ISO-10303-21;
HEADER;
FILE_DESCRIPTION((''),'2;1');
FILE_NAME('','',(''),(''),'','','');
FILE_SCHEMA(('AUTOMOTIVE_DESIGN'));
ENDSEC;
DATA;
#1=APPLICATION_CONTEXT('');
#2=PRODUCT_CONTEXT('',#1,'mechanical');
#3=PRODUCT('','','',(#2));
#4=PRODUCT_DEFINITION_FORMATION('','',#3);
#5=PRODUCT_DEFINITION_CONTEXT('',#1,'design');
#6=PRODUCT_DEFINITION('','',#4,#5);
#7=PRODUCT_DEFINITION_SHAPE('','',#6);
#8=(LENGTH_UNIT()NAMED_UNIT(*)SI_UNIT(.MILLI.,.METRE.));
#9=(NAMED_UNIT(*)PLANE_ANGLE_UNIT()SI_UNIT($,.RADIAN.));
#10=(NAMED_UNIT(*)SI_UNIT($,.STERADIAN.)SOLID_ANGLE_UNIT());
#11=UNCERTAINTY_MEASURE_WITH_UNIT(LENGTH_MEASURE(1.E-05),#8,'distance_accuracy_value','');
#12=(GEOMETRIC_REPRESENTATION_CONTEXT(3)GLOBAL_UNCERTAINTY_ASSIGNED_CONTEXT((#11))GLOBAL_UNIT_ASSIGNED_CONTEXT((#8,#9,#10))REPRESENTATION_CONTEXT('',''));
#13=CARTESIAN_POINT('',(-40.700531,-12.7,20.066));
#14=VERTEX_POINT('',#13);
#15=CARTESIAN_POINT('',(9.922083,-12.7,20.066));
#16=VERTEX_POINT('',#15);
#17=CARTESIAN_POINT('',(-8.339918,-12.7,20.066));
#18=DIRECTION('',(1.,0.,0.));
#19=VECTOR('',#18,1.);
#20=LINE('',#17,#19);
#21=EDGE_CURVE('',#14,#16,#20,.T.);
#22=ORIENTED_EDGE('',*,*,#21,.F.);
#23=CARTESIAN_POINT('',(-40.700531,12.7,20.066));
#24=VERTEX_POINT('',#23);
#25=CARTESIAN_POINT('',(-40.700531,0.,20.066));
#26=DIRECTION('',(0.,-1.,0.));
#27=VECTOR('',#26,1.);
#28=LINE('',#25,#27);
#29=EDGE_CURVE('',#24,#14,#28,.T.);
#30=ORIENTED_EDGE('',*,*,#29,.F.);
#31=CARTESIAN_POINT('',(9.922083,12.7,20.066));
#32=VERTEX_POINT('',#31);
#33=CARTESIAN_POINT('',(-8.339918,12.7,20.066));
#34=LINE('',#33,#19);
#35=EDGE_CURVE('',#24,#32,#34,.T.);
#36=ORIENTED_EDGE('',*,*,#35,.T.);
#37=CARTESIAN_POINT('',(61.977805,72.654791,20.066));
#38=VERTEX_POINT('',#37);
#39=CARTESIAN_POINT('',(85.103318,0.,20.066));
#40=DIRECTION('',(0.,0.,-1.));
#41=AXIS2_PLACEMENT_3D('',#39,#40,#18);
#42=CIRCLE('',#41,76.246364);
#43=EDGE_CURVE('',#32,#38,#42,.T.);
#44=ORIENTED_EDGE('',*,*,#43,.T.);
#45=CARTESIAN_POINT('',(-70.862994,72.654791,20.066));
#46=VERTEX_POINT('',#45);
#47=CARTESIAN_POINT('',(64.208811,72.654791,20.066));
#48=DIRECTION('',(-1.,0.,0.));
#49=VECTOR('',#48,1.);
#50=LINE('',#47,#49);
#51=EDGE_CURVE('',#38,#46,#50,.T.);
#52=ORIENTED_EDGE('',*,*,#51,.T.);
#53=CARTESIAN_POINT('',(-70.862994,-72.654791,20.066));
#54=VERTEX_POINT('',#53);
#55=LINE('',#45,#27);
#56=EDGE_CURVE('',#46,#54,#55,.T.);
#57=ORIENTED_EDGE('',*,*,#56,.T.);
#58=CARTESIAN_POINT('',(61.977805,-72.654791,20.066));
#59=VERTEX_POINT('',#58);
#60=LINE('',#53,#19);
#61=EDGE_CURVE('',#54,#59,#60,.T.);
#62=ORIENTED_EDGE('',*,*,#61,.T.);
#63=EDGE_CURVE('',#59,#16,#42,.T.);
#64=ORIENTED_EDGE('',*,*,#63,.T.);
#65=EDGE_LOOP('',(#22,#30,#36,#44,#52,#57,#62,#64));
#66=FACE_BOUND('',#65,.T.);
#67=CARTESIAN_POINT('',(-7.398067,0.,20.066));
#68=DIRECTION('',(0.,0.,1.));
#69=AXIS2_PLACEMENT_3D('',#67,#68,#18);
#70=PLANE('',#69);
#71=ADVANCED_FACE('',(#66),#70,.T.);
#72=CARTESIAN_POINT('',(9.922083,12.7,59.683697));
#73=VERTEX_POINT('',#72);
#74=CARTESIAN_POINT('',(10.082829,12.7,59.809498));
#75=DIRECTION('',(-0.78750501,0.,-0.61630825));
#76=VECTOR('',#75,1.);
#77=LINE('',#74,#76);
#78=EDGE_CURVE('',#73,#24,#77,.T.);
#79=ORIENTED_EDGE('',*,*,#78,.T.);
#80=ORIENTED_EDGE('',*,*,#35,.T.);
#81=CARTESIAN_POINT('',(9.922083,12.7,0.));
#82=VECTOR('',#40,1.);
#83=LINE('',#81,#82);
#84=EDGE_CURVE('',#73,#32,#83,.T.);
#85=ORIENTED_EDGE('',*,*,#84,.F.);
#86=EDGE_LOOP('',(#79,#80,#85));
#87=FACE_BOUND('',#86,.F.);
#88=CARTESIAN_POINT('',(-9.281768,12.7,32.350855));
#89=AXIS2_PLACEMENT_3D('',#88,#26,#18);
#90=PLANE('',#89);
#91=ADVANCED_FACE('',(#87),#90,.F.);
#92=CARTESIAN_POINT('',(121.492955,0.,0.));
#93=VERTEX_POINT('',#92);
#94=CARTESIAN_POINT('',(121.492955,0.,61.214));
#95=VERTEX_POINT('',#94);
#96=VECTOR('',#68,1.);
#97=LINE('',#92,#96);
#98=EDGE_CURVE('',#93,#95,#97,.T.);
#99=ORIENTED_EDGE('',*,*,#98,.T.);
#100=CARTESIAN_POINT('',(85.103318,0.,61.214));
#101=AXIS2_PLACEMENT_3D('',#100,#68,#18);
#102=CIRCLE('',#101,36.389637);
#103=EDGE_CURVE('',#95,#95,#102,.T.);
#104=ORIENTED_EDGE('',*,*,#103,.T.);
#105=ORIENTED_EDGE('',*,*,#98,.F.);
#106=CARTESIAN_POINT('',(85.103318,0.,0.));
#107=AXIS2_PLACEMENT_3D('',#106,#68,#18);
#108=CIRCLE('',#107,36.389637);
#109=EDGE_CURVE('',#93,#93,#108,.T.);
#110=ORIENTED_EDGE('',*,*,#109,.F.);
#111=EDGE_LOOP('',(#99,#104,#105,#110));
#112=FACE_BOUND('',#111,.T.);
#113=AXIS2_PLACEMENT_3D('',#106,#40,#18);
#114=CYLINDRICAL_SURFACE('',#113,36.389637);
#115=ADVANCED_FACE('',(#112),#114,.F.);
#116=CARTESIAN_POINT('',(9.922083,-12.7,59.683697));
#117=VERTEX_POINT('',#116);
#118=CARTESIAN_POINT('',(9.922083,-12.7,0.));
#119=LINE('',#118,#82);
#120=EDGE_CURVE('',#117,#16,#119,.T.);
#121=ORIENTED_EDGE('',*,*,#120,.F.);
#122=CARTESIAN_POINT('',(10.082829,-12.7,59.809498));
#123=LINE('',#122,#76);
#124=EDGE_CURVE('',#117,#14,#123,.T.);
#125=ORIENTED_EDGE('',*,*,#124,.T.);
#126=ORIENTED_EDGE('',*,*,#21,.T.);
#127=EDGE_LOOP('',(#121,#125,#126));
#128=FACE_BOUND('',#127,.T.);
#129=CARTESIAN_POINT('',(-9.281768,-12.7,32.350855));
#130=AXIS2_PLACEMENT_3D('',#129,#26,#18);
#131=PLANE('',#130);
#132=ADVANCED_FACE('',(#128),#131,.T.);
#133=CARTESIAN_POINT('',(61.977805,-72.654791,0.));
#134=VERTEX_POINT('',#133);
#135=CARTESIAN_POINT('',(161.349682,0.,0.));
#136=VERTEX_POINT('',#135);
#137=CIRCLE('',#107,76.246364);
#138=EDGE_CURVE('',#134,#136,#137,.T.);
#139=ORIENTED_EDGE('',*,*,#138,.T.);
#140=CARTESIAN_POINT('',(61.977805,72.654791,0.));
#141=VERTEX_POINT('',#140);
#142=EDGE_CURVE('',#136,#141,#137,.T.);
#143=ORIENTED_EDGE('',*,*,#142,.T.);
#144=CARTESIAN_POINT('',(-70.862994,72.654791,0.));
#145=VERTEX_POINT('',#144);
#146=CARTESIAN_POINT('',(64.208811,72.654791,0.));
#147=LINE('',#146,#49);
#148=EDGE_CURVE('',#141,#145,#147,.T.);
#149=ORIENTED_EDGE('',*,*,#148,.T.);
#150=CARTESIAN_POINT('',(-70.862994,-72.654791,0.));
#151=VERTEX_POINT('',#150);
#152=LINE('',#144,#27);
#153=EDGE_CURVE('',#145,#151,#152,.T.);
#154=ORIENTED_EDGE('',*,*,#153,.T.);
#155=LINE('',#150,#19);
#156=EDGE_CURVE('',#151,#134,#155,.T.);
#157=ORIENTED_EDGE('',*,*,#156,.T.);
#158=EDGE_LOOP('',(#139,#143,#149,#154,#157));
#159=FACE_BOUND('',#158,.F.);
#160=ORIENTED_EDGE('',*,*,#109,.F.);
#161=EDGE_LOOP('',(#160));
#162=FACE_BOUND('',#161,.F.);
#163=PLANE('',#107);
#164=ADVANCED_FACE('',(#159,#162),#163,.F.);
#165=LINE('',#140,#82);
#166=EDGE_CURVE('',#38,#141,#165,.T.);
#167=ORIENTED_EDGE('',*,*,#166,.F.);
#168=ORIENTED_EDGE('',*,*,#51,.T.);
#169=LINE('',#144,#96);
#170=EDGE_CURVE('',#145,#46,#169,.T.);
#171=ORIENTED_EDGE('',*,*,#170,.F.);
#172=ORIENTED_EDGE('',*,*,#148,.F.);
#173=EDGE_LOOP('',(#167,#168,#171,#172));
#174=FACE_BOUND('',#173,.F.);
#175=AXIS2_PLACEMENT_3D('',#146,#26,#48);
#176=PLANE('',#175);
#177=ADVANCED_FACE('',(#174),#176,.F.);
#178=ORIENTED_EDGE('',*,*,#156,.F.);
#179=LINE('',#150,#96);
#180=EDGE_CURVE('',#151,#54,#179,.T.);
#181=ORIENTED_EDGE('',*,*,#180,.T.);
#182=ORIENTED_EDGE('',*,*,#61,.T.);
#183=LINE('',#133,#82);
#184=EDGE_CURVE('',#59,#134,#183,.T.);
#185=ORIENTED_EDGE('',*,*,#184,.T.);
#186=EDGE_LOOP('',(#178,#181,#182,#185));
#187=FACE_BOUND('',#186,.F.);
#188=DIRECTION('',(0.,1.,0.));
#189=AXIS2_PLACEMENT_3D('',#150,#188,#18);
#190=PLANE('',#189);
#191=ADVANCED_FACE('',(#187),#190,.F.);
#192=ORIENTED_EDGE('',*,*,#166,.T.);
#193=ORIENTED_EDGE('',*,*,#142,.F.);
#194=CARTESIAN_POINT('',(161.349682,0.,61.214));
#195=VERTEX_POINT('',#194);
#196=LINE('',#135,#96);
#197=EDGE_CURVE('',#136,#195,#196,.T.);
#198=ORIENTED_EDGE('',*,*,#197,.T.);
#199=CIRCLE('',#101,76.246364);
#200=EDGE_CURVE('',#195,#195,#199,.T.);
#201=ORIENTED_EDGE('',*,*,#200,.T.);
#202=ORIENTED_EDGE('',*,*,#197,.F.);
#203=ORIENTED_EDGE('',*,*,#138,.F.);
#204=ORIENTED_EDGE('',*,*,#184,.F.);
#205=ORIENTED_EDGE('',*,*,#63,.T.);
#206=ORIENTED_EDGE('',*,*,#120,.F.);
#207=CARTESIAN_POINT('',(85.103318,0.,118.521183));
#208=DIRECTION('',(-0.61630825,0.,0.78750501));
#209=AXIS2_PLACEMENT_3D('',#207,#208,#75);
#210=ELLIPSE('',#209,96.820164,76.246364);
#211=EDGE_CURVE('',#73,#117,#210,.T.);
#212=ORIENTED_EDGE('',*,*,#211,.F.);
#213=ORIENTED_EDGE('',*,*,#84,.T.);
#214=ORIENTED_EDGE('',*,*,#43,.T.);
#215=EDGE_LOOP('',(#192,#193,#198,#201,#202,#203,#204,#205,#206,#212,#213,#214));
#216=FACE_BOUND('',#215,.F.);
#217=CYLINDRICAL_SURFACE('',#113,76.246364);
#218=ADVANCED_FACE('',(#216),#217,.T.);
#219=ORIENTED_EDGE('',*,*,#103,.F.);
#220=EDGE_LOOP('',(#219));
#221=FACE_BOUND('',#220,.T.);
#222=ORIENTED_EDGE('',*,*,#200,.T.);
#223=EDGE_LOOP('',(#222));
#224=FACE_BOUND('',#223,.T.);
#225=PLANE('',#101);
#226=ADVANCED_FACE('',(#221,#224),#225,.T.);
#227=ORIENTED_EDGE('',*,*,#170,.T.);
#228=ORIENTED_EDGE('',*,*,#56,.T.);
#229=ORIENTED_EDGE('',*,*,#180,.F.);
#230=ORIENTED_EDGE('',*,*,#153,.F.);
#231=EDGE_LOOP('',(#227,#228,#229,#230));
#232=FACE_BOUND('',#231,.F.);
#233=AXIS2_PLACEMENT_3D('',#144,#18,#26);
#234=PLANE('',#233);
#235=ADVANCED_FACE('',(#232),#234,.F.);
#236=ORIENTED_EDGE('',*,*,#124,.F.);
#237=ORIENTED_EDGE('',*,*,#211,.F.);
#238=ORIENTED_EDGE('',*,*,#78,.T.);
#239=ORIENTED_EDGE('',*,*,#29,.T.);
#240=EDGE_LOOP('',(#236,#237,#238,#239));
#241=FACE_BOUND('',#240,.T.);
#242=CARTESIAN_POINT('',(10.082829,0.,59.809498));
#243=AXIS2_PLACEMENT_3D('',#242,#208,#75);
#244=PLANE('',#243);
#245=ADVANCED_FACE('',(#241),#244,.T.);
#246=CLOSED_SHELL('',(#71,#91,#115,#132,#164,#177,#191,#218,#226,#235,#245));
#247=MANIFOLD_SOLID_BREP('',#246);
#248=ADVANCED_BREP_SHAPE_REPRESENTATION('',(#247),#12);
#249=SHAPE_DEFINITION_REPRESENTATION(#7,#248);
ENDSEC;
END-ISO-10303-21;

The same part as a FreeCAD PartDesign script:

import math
import FreeCAD as App
import Part
import Sketcher

V = App.Vector
Q = App.Units.Quantity

doc = App.newDocument("Part")
body = doc.addObject("PartDesign::Body", "Body")

sketch1 = body.newObject("Sketcher::SketchObject", "Sketch")
sketch1.AttachmentSupport = (doc.getObject("XY_Plane"), [""])
sketch1.MapMode = "FlatFace"
sketch1.addGeometry([
    Part.LineSegment(V(-71, -73, 0), V(64, -73, 0)),
    Part.ArcOfCircle(Part.Circle(V(107, 0, 0), V(0, 0, 1), 85), math.radians(121), math.radians(239)),
    Part.LineSegment(V(64, 73, 0), V(-71, 73, 0)),
    Part.LineSegment(V(-71, 73, 0), V(-71, -73, 0)),
], False)
sketch1.addConstraint([
    Sketcher.Constraint("Coincident", 0, 2, 1, 2),
    Sketcher.Constraint("Coincident", 1, 1, 2, 1),
    Sketcher.Constraint("Coincident", 2, 2, 3, 1),
    Sketcher.Constraint("Coincident", 3, 2, 0, 1),
    Sketcher.Constraint("Horizontal", 0),
    Sketcher.Constraint("Horizontal", 2),
    Sketcher.Constraint("Vertical", 3),
    Sketcher.Constraint("Symmetric", 0, 2, 1, 1, -1),
    Sketcher.Constraint("Radius", 1, Q("84.57398 mm")),
    Sketcher.Constraint("DistanceY", 3, 2, 3, 1, Q("145.309582 mm")),
    Sketcher.Constraint("DistanceX", 0, 1, 0, 2, Q("135.071805 mm")),
    Sketcher.Constraint("DistanceX", -1, 1, 0, 2, Q("64.208811 mm")),
])
pad1 = body.newObject("PartDesign::Pad", "Pad")
pad1.Profile = sketch1
pad1.Length = Q("0.79 in")

sketch2 = body.newObject("Sketcher::SketchObject", "Sketch001")
sketch2.AttachmentSupport = (doc.getObject("XY_Plane"), [""])
sketch2.MapMode = "FlatFace"
sketch2.addGeometry([
    Part.Circle(V(85, 0, 0), V(0, 0, 1), 76),
    Part.Circle(V(85, 0, 0), V(0, 0, 1), 36),
], False)
sketch2.addConstraint([
    Sketcher.Constraint("Coincident", 1, 3, 0, 3),
    Sketcher.Constraint("PointOnObject", 0, 3, -1),
    Sketcher.Constraint("Diameter", 0, Q("152.492728 mm")),
    Sketcher.Constraint("Diameter", 1, Q("72.779274 mm")),
    Sketcher.Constraint("DistanceX", -1, 1, 0, 3, Q("85.103318 mm")),
])
pad2 = body.newObject("PartDesign::Pad", "Pad001")
pad2.Profile = sketch2
pad2.Length = Q("2.41 in")

sketch3 = body.newObject("Sketcher::SketchObject", "Sketch002")
sketch3.AttachmentSupport = (doc.getObject("XZ_Plane"), [""])
sketch3.MapMode = "FlatFace"
sketch3.addGeometry([
    Part.LineSegment(V(11, 19, 0), V(10, 60, 0)),
    Part.LineSegment(V(10, 60, 0), V(-43, 19, 0)),
    Part.LineSegment(V(-43, 19, 0), V(11, 19, 0)),
], False)
sketch3.addConstraint([
    Sketcher.Constraint("Coincident", 0, 2, 1, 1),
    Sketcher.Constraint("Coincident", 1, 2, 2, 1),
    Sketcher.Constraint("Coincident", 2, 2, 0, 1),
    Sketcher.Constraint("Horizontal", 2),
    Sketcher.Constraint("DistanceX", 2, 1, 2, 2, Q("53.622312 mm")),
    Sketcher.Constraint("DistanceX", -1, 1, 0, 2, Q("10.082829 mm")),
    Sketcher.Constraint("DistanceX", 1, 2, -1, 1, Q("42.622861 mm")),
    Sketcher.Constraint("DistanceY", -1, 1, 1, 2, Q("18.561568 mm")),
    Sketcher.Constraint("DistanceY", 1, 2, 0, 2, Q("41.24793 mm")),
])
pad3 = body.newObject("PartDesign::Pad", "Pad002")
pad3.Profile = sketch3
pad3.Length = Q("1 in")
pad3.Midplane = True

doc.recompute()
